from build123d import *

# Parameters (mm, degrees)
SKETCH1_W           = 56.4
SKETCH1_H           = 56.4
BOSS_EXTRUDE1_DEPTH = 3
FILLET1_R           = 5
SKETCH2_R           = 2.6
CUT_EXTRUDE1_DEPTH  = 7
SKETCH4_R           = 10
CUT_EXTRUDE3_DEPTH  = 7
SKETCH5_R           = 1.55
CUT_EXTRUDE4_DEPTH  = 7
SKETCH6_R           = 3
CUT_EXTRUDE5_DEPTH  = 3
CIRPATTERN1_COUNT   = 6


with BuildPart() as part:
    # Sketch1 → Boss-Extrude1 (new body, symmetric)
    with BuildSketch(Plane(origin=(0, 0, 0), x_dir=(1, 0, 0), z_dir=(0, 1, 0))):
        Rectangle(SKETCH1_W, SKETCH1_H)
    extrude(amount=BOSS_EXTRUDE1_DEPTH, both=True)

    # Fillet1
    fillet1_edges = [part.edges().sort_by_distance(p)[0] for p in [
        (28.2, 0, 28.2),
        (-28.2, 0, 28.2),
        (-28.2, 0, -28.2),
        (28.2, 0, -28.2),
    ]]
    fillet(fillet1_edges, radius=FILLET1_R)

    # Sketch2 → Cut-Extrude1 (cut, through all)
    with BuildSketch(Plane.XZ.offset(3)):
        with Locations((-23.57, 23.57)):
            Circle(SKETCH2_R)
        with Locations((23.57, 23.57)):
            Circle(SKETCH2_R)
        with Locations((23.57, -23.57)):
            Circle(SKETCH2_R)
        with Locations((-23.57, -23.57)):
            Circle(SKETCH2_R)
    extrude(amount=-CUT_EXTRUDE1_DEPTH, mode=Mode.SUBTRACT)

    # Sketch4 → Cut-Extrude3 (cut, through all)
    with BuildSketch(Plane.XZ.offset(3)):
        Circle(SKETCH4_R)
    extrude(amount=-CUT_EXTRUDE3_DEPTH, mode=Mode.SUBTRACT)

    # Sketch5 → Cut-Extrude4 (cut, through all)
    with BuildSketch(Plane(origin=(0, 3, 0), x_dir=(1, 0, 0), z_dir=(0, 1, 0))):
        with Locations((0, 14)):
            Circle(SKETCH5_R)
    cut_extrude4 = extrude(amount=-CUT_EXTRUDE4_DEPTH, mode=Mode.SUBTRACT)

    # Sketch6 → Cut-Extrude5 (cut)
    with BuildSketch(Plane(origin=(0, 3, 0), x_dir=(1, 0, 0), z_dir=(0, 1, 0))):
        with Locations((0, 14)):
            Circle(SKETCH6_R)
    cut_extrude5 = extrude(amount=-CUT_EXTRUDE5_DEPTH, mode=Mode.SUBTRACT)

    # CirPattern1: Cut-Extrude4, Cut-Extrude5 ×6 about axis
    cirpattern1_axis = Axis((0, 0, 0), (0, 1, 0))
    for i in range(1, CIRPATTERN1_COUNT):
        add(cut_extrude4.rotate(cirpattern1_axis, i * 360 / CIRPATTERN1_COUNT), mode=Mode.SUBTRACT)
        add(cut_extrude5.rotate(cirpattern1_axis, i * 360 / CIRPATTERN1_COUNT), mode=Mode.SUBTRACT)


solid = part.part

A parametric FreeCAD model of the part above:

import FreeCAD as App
import Part
import Sketcher
from FreeCAD import Vector
Q = App.Units.Quantity


def edges_at(feature, points):
    """Names of the edges that pass closest to the given points."""
    edges = feature.Shape.Edges
    near = lambda p: min(range(len(edges)), key=lambda i: edges[i].distToShape(Part.Vertex(*p))[0])
    return sorted({f"Edge{near(p) + 1}" for p in points})

doc = App.newDocument("Part")
body = doc.addObject("PartDesign::Body", "Body")

sketch1 = body.newObject("Sketcher::SketchObject", "Sketch")
sketch1.AttachmentSupport = (doc.getObject("XZ_Plane"), [""])
sketch1.MapMode = "FlatFace"
sketch1.addGeometry([
    Part.LineSegment(Vector(-28, -28, 0), Vector(-28, 28, 0)),
    Part.LineSegment(Vector(-28, 28, 0), Vector(28, 28, 0)),
    Part.LineSegment(Vector(28, 28, 0), Vector(28, -28, 0)),
    Part.LineSegment(Vector(28, -28, 0), Vector(-28, -28, 0)),
], False)
sketch1.addConstraint([
    Sketcher.Constraint("Coincident", 0, 2, 1, 1),
    Sketcher.Constraint("Coincident", 1, 2, 2, 1),
    Sketcher.Constraint("Coincident", 2, 2, 3, 1),
    Sketcher.Constraint("Coincident", 3, 2, 0, 1),
    Sketcher.Constraint("Vertical", 0),
    Sketcher.Constraint("Horizontal", 1),
    Sketcher.Constraint("Vertical", 2),
    Sketcher.Constraint("Horizontal", 3),
    Sketcher.Constraint("Symmetric", 0, 2, 2, 2, -1, 1),
    Sketcher.Constraint("Equal", 3, 0),
    Sketcher.Constraint("DistanceX", 1, 1, 1, 2, Q("56.4 mm")),
])
pad1 = body.newObject("PartDesign::Pad", "Pad")
pad1.Profile = sketch1
pad1.Length = 6
pad1.Midplane = True
doc.recompute()

fillet = body.newObject("PartDesign::Fillet", "Fillet")
fillet.Base = (pad1, edges_at(pad1, [
    (28.2, 0, 28.2),
    (-28.2, 0, 28.2),
    (-28.2, 0, -28.2),
    (28.2, 0, -28.2),
]))
fillet.Radius = 5

sketch2 = body.newObject("Sketcher::SketchObject", "Sketch001")
sketch2.AttachmentSupport = (doc.getObject("XZ_Plane"), [""])
sketch2.MapMode = "FlatFace"
sketch2.AttachmentOffset = App.Placement(Vector(0, 0, 3), App.Rotation())
sketch2.addGeometry([
    Part.Circle(Vector(-23.6, 23.6, 0), Vector(0, 0, 1), 2.6),
    Part.Circle(Vector(23.6, 23.6, 0), Vector(0, 0, 1), 2.6),
    Part.Circle(Vector(23.6, -23.6, 0), Vector(0, 0, 1), 2.6),
    Part.Circle(Vector(-23.6, -23.6, 0), Vector(0, 0, 1), 2.6),
], False)
sketch2.addConstraint([
    Sketcher.Constraint("Equal", 0, 1),
    Sketcher.Constraint("Equal", 1, 2),
    Sketcher.Constraint("Equal", 2, 3),
    Sketcher.Constraint("Symmetric", 0, 3, 2, 3, -1, 1),
    Sketcher.Constraint("Symmetric", 1, 3, 3, 3, -1, 1),
    Sketcher.Constraint("Symmetric", 0, 3, 1, 3, -2),
    Sketcher.Constraint("Diameter", 0, Q("5.2 mm")),
    Sketcher.Constraint("DistanceX", 0, 3, -1, 1, Q("23.57 mm")),
    Sketcher.Constraint("DistanceY", -1, 1, 0, 3, Q("23.57 mm")),
])
pocket1 = body.newObject("PartDesign::Pocket", "Pocket")
pocket1.Profile = sketch2
pocket1.Type = "ThroughAll"

sketch3 = body.newObject("Sketcher::SketchObject", "Sketch002")
sketch3.AttachmentSupport = (doc.getObject("XZ_Plane"), [""])
sketch3.MapMode = "FlatFace"
sketch3.AttachmentOffset = App.Placement(Vector(0, 0, 3), App.Rotation())
sketch3.addGeometry(Part.Circle(Vector(0, 0, 0), Vector(0, 0, 1), 10), False)
sketch3.addConstraint([
    Sketcher.Constraint("Coincident", 0, 3, -1, 1),
    Sketcher.Constraint("Diameter", 0, Q("20 mm")),
])
pocket2 = body.newObject("PartDesign::Pocket", "Pocket001")
pocket2.Profile = sketch3
pocket2.Type = "ThroughAll"

sketch4 = body.newObject("Sketcher::SketchObject", "Sketch003")
sketch4.AttachmentSupport = (doc.getObject("XZ_Plane"), [""])
sketch4.MapMode = "FlatFace"
sketch4.AttachmentOffset = App.Placement(Vector(0, 0, -3), App.Rotation())
sketch4.addGeometry(Part.Circle(Vector(0, -14, 0), Vector(0, 0, 1), 1.6), False)
sketch4.addConstraint([
    Sketcher.Constraint("PointOnObject", 0, 3, -2),
    Sketcher.Constraint("Diameter", 0, Q("3.1 mm")),
    Sketcher.Constraint("DistanceY", 0, 3, -1, 1, Q("14 mm")),
])
pocket3 = body.newObject("PartDesign::Pocket", "Pocket002")
pocket3.Profile = sketch4
pocket3.Type = "ThroughAll"
pocket3.Reversed = True

sketch5 = body.newObject("Sketcher::SketchObject", "Sketch004")
sketch5.AttachmentSupport = (doc.getObject("XZ_Plane"), [""])
sketch5.MapMode = "FlatFace"
sketch5.AttachmentOffset = App.Placement(Vector(0, 0, -3), App.Rotation())
sketch5.addGeometry(Part.Circle(Vector(0, -14, 0), Vector(0, 0, 1), 3), False)
sketch5.addConstraint([
    Sketcher.Constraint("PointOnObject", 0, 3, -2),
    Sketcher.Constraint("Diameter", 0, Q("6 mm")),
    Sketcher.Constraint("DistanceY", 0, 3, -1, 1, Q("14 mm")),
])
pocket4 = body.newObject("PartDesign::Pocket", "Pocket003")
pocket4.Profile = sketch5
pocket4.Length = 3
pocket4.Reversed = True
doc.recompute()

polarpattern = body.newObject("PartDesign::PolarPattern", "PolarPattern")
polarpattern.Originals = [pocket3, pocket4]
polarpattern.Axis = (doc.getObject("Y_Axis"), [""])
polarpattern.Angle = 360
polarpattern.Occurrences = 6
body.Tip = polarpattern

doc.recompute()
